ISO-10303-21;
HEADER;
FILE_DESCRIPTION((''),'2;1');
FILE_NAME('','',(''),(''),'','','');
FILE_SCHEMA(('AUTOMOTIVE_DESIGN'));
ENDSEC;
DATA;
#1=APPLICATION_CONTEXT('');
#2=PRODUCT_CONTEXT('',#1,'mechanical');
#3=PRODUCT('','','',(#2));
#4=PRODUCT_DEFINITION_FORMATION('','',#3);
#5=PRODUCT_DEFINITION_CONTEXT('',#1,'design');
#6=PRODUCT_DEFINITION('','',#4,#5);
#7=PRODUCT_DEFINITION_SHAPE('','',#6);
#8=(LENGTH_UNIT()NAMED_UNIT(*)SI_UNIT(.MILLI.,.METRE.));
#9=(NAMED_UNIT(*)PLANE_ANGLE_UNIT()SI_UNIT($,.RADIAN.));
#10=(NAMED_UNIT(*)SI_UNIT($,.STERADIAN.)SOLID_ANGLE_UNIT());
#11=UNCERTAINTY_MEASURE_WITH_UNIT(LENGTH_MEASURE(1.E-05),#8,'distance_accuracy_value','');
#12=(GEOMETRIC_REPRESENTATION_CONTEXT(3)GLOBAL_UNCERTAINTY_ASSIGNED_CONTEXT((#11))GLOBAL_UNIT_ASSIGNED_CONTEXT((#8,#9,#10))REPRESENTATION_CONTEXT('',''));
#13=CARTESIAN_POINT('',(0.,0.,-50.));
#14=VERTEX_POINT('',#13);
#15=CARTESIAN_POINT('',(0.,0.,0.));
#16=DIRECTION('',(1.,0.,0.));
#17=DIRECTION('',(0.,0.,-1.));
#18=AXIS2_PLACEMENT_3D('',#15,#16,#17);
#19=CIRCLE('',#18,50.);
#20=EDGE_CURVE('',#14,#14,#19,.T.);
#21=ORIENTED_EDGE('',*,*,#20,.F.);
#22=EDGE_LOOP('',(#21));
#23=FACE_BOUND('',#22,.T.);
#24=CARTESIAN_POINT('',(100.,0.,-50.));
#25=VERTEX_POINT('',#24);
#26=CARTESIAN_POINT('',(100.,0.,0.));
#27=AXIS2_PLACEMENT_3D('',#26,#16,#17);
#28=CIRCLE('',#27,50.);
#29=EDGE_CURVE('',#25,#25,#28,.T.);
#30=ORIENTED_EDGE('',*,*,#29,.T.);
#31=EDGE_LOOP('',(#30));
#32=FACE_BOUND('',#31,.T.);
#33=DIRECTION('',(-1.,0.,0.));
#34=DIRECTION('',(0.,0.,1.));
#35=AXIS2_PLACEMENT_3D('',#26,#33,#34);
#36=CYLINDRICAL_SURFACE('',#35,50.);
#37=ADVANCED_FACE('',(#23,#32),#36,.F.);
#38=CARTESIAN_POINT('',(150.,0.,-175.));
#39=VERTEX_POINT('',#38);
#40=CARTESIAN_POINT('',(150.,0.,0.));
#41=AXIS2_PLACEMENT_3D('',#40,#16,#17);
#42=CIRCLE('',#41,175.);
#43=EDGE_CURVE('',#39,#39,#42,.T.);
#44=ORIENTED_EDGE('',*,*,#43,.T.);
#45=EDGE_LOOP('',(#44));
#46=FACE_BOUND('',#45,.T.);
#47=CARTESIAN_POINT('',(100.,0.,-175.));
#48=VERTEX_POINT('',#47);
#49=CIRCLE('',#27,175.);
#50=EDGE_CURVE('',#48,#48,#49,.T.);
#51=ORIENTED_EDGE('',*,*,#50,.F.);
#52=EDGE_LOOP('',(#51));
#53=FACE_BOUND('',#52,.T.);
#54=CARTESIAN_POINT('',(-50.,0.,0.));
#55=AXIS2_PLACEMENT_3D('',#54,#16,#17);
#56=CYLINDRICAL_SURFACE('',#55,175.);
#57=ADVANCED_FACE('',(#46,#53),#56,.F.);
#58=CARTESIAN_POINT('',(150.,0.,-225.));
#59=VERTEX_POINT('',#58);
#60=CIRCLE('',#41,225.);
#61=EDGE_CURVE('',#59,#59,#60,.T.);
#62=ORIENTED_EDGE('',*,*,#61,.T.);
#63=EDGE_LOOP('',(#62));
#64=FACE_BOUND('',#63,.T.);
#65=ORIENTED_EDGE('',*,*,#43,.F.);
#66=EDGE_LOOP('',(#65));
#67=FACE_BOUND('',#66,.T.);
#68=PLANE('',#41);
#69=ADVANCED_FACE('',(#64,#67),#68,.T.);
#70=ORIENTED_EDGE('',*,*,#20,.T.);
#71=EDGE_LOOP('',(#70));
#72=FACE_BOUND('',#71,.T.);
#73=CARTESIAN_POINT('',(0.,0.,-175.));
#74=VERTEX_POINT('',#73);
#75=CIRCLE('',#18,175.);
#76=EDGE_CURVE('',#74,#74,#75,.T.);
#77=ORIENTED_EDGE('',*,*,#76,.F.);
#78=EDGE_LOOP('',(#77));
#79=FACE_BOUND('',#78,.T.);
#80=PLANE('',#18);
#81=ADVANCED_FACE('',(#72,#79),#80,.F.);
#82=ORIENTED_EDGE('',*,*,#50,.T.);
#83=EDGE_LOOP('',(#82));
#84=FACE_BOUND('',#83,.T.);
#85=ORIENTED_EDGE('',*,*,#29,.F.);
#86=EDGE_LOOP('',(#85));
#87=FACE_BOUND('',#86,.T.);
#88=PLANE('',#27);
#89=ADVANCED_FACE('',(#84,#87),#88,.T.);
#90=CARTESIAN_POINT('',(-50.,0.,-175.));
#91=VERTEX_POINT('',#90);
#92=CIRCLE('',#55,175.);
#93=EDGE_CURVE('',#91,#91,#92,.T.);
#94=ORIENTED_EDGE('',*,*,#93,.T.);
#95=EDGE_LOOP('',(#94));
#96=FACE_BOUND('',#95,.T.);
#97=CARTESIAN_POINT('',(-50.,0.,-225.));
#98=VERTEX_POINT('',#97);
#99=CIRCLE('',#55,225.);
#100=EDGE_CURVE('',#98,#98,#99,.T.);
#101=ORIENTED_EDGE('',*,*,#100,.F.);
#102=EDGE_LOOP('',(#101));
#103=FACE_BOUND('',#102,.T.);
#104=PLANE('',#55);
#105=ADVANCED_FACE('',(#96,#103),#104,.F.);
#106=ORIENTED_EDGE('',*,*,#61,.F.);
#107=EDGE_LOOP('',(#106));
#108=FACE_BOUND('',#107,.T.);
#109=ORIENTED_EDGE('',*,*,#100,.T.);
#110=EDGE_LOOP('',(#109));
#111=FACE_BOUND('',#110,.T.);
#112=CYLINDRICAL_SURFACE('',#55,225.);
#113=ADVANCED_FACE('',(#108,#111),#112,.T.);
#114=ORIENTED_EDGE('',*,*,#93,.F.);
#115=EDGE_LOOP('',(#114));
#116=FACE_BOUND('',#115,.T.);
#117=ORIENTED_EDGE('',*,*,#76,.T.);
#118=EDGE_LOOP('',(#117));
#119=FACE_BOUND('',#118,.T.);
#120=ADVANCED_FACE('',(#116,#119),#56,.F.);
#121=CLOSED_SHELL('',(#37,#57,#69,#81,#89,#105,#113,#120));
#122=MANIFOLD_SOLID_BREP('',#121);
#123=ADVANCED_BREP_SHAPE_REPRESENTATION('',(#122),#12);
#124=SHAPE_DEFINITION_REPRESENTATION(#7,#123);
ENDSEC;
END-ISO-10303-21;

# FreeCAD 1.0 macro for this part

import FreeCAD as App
import Part
import Sketcher
Q = App.Units.Quantity

doc = App.newDocument("Part")
body = doc.addObject("PartDesign::Body", "Body")

sketch1 = body.newObject("Sketcher::SketchObject", "Sketch")
sketch1.AttachmentSupport = (doc.getObject("YZ_Plane"), [""])
sketch1.MapMode = "FlatFace"
sketch1.addGeometry(Part.Circle(App.Vector(0, 0, 0), App.Vector(0, 0, 1), 200), False)
sketch1.addGeometry(Part.Circle(App.Vector(0, 0, 0), App.Vector(0, 0, 1), 50), False)
sketch1.addConstraint(Sketcher.Constraint("Coincident", 0, 3, -1, 1))
sketch1.addConstraint(Sketcher.Constraint("Coincident", 1, 3, -1, 1))
sketch1.addConstraint(Sketcher.Constraint("Diameter", 0, Q("400 mm")))
sketch1.addConstraint(Sketcher.Constraint("Diameter", 1, Q("100 mm")))
pad1 = body.newObject("PartDesign::Pad", "Pad")
pad1.Profile = sketch1
pad1.Length = 100

sketch2 = body.newObject("Sketcher::SketchObject", "Sketch001")
sketch2.AttachmentSupport = (doc.getObject("YZ_Plane"), [""])
sketch2.MapMode = "FlatFace"
sketch2.AttachmentOffset = App.Placement(App.Vector(0, 0, 100), App.Rotation())
sketch2.addGeometry(Part.Circle(App.Vector(0, 0, 0), App.Vector(0, 0, 1), 225), False)
sketch2.addGeometry(Part.Circle(App.Vector(0, 0, 0), App.Vector(0, 0, 1), 175), False)
sketch2.addConstraint(Sketcher.Constraint("Coincident", 0, 3, -1, 1))
sketch2.addConstraint(Sketcher.Constraint("Coincident", 1, 3, -1, 1))
sketch2.addConstraint(Sketcher.Constraint("Diameter", 0, Q("450 mm")))
sketch2.addConstraint(Sketcher.Constraint("Diameter", 1, Q("350 mm")))
pad2 = body.newObject("PartDesign::Pad", "Pad001")
pad2.Profile = sketch2
pad2.Type = "TwoLengths"
pad2.Length = 50
pad2.Length2 = 150

doc.recompute()
